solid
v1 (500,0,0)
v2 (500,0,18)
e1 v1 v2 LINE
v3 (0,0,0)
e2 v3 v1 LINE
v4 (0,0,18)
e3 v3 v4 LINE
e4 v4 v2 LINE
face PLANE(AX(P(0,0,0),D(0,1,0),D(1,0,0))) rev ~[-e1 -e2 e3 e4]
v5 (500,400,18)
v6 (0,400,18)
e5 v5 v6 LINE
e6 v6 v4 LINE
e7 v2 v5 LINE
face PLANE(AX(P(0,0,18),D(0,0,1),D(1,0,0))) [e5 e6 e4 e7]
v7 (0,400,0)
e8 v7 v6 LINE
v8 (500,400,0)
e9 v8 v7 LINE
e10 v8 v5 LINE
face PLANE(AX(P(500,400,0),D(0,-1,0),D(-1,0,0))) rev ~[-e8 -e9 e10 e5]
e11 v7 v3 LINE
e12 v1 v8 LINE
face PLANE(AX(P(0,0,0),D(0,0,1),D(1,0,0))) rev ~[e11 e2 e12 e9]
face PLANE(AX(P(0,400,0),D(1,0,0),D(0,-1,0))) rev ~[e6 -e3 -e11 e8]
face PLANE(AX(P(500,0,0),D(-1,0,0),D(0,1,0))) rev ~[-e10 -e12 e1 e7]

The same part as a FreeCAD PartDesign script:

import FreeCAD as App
import Part
import Sketcher
from FreeCAD import Vector
Q = App.Units.Quantity


def add_polygon(sketch, points):
    """Adds a closed chain of lines whose ends are joined by coincident constraints."""
    first, n = sketch.GeometryCount, len(points)
    for a, b in zip(points, points[1:] + points[:1]):
        sketch.addGeometry(Part.LineSegment(App.Vector(*a, 0), App.Vector(*b, 0)), False)
    for i in range(n):
        sketch.addConstraint(Sketcher.Constraint("Coincident", first + i, 2, first + (i + 1) % n, 1))

doc = App.newDocument("Part")
params = doc.addObject("Spreadsheet::Sheet", "Params")
for row, (alias, value) in enumerate([
    ("sketch1_width", "500 mm"),
    ("sketch1_height", "400 mm"),
    ("pad1_length", "18 mm"),
], start=1):
    params.set(f"A{row}", alias)
    params.set(f"B{row}", "=" + value)
    params.setAlias(f"B{row}", alias)

body = doc.addObject("PartDesign::Body", "Body")

# Sketch on XY plane
sketch1 = body.newObject("Sketcher::SketchObject", "Sketch")
sketch1.AttachmentSupport = (doc.getObject("XY_Plane"), [""])
sketch1.MapMode = "FlatFace"
add_polygon(sketch1, [(0, 400), (0, 0), (500, 0), (500, 400)])  # lines 0-3
sketch1.addConstraint([
    Sketcher.Constraint("Vertical", 0),
    Sketcher.Constraint("Horizontal", 1),
    Sketcher.Constraint("Vertical", 2),
    Sketcher.Constraint("Horizontal", 3),
    Sketcher.Constraint("Coincident", 0, 2, -1, 1),
    Sketcher.Constraint("DistanceX", 1, 1, 1, 2, Q("500 mm")),
    Sketcher.Constraint("DistanceY", 0, 2, 0, 1, Q("400 mm")),
])
sketch1.setExpression("Constraints[9]", "Params.sketch1_width")
sketch1.setExpression("Constraints[10]", "Params.sketch1_height")
pad1 = body.newObject("PartDesign::Pad", "Pad")
pad1.Profile = sketch1
pad1.setExpression("Length", "Params.pad1_length")

doc.recompute()
